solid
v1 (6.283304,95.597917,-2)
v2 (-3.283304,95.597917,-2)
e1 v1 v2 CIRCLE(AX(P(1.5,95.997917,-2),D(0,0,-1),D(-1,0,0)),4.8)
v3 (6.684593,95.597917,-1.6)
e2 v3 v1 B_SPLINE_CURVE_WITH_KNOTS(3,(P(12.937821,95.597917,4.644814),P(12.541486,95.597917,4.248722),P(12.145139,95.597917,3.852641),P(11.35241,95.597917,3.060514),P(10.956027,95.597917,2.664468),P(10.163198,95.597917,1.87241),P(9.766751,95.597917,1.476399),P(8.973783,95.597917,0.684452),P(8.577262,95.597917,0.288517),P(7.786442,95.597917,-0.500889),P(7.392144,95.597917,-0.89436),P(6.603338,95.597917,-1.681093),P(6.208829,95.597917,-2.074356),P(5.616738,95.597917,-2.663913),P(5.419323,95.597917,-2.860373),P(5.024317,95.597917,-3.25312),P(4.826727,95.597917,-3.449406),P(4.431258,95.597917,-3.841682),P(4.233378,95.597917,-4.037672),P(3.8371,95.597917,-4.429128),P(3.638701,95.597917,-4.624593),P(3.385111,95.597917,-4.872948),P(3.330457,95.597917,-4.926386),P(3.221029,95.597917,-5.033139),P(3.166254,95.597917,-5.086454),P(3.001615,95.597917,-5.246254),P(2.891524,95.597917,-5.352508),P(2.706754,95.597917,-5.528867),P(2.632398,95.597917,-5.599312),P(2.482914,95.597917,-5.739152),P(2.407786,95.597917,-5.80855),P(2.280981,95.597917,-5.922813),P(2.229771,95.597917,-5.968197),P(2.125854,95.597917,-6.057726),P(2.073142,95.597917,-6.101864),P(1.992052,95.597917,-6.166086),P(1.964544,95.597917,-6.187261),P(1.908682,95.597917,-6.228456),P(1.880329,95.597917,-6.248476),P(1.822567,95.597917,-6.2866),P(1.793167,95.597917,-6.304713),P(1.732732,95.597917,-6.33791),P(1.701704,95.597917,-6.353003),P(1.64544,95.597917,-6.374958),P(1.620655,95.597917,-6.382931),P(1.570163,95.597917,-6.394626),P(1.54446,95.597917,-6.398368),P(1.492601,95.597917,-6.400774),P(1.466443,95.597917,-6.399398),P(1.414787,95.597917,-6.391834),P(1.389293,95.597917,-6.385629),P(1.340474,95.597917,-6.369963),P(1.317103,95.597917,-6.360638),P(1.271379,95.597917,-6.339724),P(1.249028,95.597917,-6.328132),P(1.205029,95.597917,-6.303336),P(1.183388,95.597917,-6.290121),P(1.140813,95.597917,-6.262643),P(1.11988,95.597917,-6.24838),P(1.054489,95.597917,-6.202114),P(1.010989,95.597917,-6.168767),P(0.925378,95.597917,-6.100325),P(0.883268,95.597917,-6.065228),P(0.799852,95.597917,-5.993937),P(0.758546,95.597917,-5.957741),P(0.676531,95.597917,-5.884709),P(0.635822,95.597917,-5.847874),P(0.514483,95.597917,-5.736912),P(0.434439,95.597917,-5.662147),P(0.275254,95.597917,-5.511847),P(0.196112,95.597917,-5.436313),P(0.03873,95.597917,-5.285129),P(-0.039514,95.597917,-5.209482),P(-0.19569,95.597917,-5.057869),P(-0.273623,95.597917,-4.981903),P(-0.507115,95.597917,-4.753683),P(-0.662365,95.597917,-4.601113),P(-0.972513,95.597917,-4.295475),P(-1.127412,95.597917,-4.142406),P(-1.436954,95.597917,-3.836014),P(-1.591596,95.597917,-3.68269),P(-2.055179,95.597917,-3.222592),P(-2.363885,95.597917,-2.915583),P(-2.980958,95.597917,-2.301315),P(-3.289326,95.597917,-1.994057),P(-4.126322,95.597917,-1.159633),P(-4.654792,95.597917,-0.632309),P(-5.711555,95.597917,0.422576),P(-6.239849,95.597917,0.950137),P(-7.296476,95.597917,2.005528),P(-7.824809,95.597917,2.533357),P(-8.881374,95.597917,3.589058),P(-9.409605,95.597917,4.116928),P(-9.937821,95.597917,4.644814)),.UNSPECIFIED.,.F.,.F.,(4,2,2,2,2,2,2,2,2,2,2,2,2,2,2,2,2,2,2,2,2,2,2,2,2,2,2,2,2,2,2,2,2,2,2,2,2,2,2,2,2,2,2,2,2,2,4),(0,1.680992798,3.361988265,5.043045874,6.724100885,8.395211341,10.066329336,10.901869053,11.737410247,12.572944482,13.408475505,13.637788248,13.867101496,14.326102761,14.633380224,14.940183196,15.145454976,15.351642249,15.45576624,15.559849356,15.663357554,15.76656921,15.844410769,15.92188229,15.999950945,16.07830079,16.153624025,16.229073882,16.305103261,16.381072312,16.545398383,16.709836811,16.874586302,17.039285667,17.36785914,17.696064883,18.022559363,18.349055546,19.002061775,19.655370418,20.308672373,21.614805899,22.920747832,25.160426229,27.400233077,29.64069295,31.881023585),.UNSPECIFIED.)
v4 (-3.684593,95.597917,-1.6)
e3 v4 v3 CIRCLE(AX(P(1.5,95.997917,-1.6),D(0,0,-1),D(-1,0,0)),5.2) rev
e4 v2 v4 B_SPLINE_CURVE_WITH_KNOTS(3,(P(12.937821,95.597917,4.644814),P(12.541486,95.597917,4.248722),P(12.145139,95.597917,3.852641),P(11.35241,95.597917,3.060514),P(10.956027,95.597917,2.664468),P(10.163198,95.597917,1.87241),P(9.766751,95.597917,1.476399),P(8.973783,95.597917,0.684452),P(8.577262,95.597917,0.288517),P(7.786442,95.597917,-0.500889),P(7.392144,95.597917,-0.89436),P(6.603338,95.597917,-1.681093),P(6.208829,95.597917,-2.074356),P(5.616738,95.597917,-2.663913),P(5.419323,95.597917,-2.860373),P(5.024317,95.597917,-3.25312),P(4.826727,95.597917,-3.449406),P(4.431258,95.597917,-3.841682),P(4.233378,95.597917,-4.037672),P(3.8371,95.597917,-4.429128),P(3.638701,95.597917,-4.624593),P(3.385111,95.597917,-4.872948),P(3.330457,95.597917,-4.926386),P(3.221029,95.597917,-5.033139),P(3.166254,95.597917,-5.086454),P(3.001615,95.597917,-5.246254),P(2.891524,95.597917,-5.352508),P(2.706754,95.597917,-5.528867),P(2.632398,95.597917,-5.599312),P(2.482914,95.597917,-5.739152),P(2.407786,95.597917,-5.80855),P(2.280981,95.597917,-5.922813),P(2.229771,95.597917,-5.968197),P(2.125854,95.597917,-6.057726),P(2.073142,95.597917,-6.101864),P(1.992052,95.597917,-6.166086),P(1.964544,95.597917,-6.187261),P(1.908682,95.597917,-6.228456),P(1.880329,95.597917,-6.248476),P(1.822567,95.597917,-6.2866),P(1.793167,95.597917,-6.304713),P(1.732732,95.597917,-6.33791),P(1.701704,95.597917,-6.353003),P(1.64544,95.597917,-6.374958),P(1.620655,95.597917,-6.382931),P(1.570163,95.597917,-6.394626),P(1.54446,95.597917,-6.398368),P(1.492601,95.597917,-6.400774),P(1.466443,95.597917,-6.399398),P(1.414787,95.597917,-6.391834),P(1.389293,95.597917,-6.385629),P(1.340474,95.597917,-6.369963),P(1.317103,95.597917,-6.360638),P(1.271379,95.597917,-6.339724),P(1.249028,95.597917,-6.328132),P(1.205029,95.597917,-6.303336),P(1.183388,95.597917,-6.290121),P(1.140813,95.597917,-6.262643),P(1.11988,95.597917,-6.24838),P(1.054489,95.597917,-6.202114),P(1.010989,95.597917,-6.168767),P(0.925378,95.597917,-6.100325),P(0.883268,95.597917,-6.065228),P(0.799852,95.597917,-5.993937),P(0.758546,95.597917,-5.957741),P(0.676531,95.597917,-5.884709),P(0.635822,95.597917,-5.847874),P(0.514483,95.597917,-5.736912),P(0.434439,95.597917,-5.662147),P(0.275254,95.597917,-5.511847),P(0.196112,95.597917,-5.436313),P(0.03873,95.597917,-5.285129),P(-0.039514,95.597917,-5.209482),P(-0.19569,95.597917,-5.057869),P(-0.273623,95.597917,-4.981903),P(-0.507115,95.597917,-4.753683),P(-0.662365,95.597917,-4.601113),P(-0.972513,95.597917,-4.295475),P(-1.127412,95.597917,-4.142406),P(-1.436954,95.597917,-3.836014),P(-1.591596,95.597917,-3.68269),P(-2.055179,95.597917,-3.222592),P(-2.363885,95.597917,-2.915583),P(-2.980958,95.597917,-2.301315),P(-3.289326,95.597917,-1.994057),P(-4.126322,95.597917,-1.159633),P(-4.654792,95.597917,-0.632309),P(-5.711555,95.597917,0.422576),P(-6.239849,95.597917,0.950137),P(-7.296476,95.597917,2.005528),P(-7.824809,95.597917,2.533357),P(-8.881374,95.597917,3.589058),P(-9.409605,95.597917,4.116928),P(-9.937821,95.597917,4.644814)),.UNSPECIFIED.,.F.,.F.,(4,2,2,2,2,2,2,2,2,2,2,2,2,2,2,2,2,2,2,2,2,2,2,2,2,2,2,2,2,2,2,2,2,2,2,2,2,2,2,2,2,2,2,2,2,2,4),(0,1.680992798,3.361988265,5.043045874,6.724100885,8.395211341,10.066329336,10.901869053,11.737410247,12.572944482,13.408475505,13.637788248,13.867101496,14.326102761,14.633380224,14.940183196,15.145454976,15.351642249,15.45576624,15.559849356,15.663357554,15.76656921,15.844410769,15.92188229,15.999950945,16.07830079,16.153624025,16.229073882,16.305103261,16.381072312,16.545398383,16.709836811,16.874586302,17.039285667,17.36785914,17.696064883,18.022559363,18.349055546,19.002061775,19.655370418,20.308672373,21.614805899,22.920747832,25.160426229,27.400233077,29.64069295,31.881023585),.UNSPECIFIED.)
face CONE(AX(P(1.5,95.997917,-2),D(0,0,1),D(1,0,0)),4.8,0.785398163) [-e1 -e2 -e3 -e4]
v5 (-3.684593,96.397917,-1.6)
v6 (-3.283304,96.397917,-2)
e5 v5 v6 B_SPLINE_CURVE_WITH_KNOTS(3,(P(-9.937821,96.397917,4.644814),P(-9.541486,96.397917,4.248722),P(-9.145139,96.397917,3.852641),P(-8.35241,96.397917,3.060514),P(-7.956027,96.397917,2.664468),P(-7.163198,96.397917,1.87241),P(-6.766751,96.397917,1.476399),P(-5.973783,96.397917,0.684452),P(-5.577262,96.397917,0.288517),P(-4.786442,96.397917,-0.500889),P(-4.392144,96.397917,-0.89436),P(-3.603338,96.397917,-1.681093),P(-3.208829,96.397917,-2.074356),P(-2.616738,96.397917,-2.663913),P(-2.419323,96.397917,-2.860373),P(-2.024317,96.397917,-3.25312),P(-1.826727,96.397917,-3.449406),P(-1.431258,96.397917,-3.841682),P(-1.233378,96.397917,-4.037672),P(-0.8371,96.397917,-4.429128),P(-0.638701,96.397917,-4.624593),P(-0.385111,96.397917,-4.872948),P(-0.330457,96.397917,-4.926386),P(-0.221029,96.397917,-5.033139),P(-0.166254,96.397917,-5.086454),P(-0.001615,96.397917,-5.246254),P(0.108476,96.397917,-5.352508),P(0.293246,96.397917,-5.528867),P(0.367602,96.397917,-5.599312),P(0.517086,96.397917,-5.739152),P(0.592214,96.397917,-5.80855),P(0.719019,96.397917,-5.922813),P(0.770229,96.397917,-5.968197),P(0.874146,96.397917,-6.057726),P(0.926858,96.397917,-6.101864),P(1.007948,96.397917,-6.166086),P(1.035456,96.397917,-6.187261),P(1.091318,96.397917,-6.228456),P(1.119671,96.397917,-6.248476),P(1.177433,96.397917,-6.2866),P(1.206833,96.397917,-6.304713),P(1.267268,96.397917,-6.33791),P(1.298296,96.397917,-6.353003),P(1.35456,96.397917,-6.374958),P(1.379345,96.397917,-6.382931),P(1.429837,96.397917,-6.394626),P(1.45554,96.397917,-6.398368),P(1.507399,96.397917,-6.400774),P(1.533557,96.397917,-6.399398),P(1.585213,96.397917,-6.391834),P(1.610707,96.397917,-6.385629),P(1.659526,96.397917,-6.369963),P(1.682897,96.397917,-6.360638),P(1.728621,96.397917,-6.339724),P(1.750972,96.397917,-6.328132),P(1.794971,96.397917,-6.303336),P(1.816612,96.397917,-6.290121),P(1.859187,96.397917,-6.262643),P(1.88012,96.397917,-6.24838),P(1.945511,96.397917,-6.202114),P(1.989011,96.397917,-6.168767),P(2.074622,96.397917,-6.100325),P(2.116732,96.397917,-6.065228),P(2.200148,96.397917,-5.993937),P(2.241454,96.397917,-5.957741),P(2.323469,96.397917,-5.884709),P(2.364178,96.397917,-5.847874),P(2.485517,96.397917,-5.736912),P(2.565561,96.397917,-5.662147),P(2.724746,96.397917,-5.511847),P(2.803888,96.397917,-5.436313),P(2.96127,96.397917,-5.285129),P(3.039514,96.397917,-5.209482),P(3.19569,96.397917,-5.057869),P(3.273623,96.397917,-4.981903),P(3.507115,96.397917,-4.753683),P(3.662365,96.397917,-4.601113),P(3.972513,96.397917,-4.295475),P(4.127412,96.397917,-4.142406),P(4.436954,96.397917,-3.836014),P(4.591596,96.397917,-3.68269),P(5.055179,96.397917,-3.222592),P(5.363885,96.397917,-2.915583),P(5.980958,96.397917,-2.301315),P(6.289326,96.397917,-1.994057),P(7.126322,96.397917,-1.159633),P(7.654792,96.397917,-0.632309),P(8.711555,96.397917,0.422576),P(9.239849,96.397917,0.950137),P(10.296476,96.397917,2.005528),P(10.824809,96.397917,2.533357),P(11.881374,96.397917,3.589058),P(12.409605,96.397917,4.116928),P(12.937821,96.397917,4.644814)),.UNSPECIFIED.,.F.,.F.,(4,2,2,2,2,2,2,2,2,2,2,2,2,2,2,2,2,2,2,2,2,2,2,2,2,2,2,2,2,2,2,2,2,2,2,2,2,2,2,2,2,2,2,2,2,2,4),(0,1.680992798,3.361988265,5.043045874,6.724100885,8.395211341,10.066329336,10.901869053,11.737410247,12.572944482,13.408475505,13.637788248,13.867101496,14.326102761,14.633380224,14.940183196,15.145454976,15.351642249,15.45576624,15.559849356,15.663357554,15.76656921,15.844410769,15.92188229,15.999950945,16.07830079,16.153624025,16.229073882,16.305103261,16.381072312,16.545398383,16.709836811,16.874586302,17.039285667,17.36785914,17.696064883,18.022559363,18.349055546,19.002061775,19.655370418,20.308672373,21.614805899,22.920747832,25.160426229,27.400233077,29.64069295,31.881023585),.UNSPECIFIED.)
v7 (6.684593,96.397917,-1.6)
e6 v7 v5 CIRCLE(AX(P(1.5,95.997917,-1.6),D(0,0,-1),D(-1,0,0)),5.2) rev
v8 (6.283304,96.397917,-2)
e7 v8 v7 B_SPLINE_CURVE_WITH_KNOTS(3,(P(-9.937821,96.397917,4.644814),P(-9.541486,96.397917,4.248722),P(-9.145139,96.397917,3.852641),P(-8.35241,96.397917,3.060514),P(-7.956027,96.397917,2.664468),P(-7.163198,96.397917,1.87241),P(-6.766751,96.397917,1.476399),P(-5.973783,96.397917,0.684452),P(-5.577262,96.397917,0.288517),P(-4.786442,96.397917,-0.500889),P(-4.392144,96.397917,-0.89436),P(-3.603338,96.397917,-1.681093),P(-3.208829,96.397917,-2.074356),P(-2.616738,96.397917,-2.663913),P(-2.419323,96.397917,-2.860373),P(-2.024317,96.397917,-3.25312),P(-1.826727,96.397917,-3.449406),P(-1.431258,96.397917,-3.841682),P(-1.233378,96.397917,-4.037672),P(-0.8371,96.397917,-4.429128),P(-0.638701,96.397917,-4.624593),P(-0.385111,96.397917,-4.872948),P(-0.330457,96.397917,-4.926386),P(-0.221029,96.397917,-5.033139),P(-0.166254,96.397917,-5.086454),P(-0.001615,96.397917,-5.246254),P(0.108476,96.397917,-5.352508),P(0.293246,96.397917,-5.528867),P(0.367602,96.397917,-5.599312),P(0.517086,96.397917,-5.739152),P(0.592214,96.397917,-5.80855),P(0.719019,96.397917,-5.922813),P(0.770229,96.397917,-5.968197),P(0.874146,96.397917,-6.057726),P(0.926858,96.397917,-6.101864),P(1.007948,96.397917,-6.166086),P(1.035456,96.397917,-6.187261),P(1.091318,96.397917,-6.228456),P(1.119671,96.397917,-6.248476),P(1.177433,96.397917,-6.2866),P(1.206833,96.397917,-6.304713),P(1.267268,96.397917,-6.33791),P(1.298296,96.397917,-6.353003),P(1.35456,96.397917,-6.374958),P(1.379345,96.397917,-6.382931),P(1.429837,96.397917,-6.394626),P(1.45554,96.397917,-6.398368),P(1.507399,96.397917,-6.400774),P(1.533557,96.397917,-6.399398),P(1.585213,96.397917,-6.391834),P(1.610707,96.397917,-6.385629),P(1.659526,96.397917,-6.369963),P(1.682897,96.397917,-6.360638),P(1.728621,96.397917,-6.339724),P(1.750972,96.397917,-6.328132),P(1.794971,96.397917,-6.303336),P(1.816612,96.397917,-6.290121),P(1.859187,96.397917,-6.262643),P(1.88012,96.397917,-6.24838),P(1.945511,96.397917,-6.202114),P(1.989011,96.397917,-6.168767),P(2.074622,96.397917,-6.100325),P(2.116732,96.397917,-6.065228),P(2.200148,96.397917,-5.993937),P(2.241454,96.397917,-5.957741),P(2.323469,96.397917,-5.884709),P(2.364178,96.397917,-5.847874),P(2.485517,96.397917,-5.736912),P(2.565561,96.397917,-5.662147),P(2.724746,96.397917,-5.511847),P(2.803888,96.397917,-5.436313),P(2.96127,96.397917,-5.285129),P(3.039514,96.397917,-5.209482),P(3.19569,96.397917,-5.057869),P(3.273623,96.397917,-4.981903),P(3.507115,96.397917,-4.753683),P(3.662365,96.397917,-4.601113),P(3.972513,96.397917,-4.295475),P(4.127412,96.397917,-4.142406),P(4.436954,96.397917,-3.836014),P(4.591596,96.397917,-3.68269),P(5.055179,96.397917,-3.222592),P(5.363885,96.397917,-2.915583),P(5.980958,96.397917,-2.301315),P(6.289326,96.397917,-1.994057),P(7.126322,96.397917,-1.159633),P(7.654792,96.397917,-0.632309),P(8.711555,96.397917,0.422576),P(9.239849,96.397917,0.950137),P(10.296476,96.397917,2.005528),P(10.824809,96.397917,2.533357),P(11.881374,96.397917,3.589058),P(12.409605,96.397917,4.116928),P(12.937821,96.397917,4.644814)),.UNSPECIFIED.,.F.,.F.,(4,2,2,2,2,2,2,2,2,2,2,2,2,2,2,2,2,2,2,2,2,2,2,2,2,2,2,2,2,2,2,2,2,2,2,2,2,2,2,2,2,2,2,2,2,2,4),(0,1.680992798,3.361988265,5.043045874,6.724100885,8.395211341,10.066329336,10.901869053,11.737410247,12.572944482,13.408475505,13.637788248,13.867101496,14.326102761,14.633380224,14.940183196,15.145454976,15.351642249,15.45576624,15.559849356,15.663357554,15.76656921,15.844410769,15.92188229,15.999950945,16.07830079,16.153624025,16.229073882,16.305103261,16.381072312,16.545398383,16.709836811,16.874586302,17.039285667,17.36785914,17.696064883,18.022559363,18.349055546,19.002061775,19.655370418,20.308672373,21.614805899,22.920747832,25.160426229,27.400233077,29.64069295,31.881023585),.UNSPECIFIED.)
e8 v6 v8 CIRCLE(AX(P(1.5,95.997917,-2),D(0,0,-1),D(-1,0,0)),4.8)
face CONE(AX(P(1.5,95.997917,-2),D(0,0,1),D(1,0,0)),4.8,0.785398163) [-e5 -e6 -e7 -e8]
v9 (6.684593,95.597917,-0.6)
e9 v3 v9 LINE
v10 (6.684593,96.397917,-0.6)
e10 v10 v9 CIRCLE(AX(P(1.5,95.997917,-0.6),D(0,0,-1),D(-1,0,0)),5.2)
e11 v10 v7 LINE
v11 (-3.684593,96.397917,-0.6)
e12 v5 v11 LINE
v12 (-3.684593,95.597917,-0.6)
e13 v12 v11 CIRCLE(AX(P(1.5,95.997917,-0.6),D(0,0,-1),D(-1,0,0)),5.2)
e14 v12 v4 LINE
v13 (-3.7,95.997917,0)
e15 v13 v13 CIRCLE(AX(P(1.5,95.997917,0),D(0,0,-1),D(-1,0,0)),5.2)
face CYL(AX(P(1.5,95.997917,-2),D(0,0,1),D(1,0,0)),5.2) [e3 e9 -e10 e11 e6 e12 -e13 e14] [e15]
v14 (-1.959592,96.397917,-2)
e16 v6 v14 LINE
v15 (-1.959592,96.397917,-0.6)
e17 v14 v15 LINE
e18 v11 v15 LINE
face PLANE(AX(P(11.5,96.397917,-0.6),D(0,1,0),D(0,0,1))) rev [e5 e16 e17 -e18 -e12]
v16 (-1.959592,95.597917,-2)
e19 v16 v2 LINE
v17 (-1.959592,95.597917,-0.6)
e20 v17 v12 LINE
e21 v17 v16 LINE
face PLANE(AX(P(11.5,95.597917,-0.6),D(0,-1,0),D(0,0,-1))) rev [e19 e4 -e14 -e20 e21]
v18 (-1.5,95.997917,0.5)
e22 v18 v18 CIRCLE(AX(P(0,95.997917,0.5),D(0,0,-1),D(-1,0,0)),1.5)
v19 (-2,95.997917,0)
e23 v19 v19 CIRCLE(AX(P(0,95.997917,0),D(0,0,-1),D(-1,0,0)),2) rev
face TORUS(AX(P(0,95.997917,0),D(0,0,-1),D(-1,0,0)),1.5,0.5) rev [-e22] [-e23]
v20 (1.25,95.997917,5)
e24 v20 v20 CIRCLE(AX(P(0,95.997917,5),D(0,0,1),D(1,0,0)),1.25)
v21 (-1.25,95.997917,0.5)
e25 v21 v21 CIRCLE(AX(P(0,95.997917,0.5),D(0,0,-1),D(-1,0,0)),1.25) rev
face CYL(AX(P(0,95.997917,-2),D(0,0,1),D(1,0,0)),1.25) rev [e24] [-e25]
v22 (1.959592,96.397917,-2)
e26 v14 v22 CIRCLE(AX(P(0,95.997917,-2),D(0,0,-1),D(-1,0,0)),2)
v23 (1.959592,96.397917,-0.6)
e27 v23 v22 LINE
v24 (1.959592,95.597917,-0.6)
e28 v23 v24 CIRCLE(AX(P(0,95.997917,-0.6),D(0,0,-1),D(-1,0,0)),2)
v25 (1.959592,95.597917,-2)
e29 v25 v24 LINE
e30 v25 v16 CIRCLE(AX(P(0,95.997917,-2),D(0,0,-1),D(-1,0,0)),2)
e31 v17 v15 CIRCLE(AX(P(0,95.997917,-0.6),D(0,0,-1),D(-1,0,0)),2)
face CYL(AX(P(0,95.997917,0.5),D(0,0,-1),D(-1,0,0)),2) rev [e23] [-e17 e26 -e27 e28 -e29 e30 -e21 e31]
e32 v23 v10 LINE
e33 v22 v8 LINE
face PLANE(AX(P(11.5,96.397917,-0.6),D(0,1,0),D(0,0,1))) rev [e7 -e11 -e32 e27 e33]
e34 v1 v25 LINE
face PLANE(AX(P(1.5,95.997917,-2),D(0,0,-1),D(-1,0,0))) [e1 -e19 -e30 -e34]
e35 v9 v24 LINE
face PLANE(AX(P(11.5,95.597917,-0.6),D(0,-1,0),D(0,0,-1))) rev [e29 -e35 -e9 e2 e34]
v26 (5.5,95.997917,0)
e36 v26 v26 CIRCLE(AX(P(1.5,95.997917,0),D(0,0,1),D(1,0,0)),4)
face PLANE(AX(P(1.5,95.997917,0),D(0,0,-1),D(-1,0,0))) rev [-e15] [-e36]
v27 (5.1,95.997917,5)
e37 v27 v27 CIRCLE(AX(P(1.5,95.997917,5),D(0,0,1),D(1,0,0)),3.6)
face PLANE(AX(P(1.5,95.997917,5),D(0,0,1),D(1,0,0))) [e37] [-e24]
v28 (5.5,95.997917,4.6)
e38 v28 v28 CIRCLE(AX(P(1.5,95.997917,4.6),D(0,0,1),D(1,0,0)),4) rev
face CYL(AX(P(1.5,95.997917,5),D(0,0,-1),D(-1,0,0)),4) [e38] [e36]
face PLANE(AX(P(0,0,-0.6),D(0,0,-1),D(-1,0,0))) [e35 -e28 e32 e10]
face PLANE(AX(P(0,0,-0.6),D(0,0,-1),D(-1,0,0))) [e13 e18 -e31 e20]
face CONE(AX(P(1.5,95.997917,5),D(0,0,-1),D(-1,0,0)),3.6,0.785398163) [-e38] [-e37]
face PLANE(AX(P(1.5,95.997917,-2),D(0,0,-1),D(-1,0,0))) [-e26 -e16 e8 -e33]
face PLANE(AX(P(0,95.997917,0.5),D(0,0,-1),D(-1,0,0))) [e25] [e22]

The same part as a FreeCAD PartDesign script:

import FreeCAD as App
import Part
import Sketcher

V = App.Vector


def edges_at(feature, points):
    """Names of the edges that pass closest to the given points."""
    edges = feature.Shape.Edges
    near = lambda p: min(range(len(edges)), key=lambda i: edges[i].distToShape(Part.Vertex(*p))[0])
    return sorted({f"Edge{near(p) + 1}" for p in points})

doc = App.newDocument("Part")
body = doc.addObject("PartDesign::Body", "Body")

sketch1 = body.newObject("Sketcher::SketchObject", "Sketch")
sketch1.AttachmentSupport = (doc.getObject("XY_Plane"), [""])
sketch1.MapMode = "FlatFace"
sketch1.addGeometry(Part.Circle(V(1.5, 96, 0), V(0, 0, 1), 4), False)
sketch1.addConstraint([
    Sketcher.Constraint("Diameter", 0, 8.0),
    Sketcher.Constraint("DistanceX", -1, 1, 0, 3, 1.5),
    Sketcher.Constraint("DistanceY", -1, 1, 0, 3, 95.997917),
])
pad1 = body.newObject("PartDesign::Pad", "Pad")
pad1.Profile = sketch1
pad1.Length = 5

sketch2 = body.newObject("Sketcher::SketchObject", "Sketch001")
sketch2.AttachmentSupport = (doc.getObject("XY_Plane"), [""])
sketch2.MapMode = "FlatFace"
sketch2.addGeometry(Part.Circle(V(2, 96, 0), V(0, 0, 1), 5), False)
sketch2.addConstraint([
    Sketcher.Constraint("Diameter", 0, 10.4),
    Sketcher.Constraint("DistanceX", -1, 1, 0, 3, 1.5),
    Sketcher.Constraint("DistanceY", -1, 1, 0, 3, 95.997917),
])
pad2 = body.newObject("PartDesign::Pad", "Pad001")
pad2.Profile = sketch2
pad2.Length = 2
pad2.Reversed = True

sketch3 = body.newObject("Sketcher::SketchObject", "Sketch002")
sketch3.AttachmentSupport = (doc.getObject("XY_Plane"), [""])
sketch3.MapMode = "FlatFace"
sketch3.AttachmentOffset = App.Placement(V(0, 0, 5), App.Rotation())
sketch3.addGeometry(Part.Circle(V(0, 96, 0), V(0, 0, 1), 1.2), False)
sketch3.addConstraint([
    Sketcher.Constraint("PointOnObject", 0, 3, -2),
    Sketcher.Constraint("Diameter", 0, 2.5),
    Sketcher.Constraint("DistanceY", -1, 1, 0, 3, 95.997917),
])
pocket1 = body.newObject("PartDesign::Pocket", "Pocket")
pocket1.Profile = sketch3
pocket1.Type = "ThroughAll"
doc.recompute()

chamfer = body.newObject("PartDesign::Chamfer", "Chamfer")
chamfer.Base = (pocket1, edges_at(pocket1, [(-2.5, 95.998, 5), (6.7, 95.998, -2)]))
chamfer.Size = 0.4

sketch4 = body.newObject("Sketcher::SketchObject", "Sketch003")
sketch4.AttachmentSupport = (doc.getObject("XY_Plane"), [""])
sketch4.MapMode = "FlatFace"
sketch4.AttachmentOffset = App.Placement(V(0, 0, -2), App.Rotation())
sketch4.addGeometry([
    Part.LineSegment(V(11.5, 96.4, 0), V(11.5, 95.6, 0)),
    Part.LineSegment(V(11.5, 95.6, 0), V(-8.5, 95.6, 0)),
    Part.LineSegment(V(-8.5, 95.6, 0), V(-8.5, 96.4, 0)),
    Part.LineSegment(V(-8.5, 96.4, 0), V(11.5, 96.4, 0)),
], False)
sketch4.addConstraint([
    Sketcher.Constraint("Coincident", 0, 2, 1, 1),
    Sketcher.Constraint("Coincident", 1, 2, 2, 1),
    Sketcher.Constraint("Coincident", 2, 2, 3, 1),
    Sketcher.Constraint("Coincident", 3, 2, 0, 1),
    Sketcher.Constraint("Vertical", 0),
    Sketcher.Constraint("Horizontal", 1),
    Sketcher.Constraint("Vertical", 2),
    Sketcher.Constraint("Horizontal", 3),
    Sketcher.Constraint("DistanceX", 1, 2, 1, 1, 20.0),
    Sketcher.Constraint("DistanceY", 0, 2, 0, 1, 0.8),
    Sketcher.Constraint("DistanceX", -1, 1, 0, 2, 11.5),
    Sketcher.Constraint("DistanceY", -1, 1, 0, 2, 95.597917),
])
pocket2 = body.newObject("PartDesign::Pocket", "Pocket001")
pocket2.Profile = sketch4
pocket2.Length = 1.4
pocket2.Reversed = True

sketch5 = body.newObject("Sketcher::SketchObject", "Sketch004")
sketch5.AttachmentSupport = (doc.getObject("XY_Plane"), [""])
sketch5.MapMode = "FlatFace"
sketch5.AttachmentOffset = App.Placement(V(0, 0, -2), App.Rotation())
sketch5.addGeometry(Part.Circle(V(0, 96, 0), V(0, 0, 1), 2), False)
sketch5.addConstraint([
    Sketcher.Constraint("PointOnObject", 0, 3, -2),
    Sketcher.Constraint("Diameter", 0, 4.0),
    Sketcher.Constraint("DistanceY", -1, 1, 0, 3, 95.997917),
])
pocket3 = body.newObject("PartDesign::Pocket", "Pocket002")
pocket3.Profile = sketch5
pocket3.Length = 2.5
pocket3.Reversed = True
doc.recompute()

fillet = body.newObject("PartDesign::Fillet", "Fillet")
fillet.Base = (pocket3, edges_at(pocket3, [(2, 95.998, 0.5)]))
fillet.Radius = 0.5

doc.recompute()
